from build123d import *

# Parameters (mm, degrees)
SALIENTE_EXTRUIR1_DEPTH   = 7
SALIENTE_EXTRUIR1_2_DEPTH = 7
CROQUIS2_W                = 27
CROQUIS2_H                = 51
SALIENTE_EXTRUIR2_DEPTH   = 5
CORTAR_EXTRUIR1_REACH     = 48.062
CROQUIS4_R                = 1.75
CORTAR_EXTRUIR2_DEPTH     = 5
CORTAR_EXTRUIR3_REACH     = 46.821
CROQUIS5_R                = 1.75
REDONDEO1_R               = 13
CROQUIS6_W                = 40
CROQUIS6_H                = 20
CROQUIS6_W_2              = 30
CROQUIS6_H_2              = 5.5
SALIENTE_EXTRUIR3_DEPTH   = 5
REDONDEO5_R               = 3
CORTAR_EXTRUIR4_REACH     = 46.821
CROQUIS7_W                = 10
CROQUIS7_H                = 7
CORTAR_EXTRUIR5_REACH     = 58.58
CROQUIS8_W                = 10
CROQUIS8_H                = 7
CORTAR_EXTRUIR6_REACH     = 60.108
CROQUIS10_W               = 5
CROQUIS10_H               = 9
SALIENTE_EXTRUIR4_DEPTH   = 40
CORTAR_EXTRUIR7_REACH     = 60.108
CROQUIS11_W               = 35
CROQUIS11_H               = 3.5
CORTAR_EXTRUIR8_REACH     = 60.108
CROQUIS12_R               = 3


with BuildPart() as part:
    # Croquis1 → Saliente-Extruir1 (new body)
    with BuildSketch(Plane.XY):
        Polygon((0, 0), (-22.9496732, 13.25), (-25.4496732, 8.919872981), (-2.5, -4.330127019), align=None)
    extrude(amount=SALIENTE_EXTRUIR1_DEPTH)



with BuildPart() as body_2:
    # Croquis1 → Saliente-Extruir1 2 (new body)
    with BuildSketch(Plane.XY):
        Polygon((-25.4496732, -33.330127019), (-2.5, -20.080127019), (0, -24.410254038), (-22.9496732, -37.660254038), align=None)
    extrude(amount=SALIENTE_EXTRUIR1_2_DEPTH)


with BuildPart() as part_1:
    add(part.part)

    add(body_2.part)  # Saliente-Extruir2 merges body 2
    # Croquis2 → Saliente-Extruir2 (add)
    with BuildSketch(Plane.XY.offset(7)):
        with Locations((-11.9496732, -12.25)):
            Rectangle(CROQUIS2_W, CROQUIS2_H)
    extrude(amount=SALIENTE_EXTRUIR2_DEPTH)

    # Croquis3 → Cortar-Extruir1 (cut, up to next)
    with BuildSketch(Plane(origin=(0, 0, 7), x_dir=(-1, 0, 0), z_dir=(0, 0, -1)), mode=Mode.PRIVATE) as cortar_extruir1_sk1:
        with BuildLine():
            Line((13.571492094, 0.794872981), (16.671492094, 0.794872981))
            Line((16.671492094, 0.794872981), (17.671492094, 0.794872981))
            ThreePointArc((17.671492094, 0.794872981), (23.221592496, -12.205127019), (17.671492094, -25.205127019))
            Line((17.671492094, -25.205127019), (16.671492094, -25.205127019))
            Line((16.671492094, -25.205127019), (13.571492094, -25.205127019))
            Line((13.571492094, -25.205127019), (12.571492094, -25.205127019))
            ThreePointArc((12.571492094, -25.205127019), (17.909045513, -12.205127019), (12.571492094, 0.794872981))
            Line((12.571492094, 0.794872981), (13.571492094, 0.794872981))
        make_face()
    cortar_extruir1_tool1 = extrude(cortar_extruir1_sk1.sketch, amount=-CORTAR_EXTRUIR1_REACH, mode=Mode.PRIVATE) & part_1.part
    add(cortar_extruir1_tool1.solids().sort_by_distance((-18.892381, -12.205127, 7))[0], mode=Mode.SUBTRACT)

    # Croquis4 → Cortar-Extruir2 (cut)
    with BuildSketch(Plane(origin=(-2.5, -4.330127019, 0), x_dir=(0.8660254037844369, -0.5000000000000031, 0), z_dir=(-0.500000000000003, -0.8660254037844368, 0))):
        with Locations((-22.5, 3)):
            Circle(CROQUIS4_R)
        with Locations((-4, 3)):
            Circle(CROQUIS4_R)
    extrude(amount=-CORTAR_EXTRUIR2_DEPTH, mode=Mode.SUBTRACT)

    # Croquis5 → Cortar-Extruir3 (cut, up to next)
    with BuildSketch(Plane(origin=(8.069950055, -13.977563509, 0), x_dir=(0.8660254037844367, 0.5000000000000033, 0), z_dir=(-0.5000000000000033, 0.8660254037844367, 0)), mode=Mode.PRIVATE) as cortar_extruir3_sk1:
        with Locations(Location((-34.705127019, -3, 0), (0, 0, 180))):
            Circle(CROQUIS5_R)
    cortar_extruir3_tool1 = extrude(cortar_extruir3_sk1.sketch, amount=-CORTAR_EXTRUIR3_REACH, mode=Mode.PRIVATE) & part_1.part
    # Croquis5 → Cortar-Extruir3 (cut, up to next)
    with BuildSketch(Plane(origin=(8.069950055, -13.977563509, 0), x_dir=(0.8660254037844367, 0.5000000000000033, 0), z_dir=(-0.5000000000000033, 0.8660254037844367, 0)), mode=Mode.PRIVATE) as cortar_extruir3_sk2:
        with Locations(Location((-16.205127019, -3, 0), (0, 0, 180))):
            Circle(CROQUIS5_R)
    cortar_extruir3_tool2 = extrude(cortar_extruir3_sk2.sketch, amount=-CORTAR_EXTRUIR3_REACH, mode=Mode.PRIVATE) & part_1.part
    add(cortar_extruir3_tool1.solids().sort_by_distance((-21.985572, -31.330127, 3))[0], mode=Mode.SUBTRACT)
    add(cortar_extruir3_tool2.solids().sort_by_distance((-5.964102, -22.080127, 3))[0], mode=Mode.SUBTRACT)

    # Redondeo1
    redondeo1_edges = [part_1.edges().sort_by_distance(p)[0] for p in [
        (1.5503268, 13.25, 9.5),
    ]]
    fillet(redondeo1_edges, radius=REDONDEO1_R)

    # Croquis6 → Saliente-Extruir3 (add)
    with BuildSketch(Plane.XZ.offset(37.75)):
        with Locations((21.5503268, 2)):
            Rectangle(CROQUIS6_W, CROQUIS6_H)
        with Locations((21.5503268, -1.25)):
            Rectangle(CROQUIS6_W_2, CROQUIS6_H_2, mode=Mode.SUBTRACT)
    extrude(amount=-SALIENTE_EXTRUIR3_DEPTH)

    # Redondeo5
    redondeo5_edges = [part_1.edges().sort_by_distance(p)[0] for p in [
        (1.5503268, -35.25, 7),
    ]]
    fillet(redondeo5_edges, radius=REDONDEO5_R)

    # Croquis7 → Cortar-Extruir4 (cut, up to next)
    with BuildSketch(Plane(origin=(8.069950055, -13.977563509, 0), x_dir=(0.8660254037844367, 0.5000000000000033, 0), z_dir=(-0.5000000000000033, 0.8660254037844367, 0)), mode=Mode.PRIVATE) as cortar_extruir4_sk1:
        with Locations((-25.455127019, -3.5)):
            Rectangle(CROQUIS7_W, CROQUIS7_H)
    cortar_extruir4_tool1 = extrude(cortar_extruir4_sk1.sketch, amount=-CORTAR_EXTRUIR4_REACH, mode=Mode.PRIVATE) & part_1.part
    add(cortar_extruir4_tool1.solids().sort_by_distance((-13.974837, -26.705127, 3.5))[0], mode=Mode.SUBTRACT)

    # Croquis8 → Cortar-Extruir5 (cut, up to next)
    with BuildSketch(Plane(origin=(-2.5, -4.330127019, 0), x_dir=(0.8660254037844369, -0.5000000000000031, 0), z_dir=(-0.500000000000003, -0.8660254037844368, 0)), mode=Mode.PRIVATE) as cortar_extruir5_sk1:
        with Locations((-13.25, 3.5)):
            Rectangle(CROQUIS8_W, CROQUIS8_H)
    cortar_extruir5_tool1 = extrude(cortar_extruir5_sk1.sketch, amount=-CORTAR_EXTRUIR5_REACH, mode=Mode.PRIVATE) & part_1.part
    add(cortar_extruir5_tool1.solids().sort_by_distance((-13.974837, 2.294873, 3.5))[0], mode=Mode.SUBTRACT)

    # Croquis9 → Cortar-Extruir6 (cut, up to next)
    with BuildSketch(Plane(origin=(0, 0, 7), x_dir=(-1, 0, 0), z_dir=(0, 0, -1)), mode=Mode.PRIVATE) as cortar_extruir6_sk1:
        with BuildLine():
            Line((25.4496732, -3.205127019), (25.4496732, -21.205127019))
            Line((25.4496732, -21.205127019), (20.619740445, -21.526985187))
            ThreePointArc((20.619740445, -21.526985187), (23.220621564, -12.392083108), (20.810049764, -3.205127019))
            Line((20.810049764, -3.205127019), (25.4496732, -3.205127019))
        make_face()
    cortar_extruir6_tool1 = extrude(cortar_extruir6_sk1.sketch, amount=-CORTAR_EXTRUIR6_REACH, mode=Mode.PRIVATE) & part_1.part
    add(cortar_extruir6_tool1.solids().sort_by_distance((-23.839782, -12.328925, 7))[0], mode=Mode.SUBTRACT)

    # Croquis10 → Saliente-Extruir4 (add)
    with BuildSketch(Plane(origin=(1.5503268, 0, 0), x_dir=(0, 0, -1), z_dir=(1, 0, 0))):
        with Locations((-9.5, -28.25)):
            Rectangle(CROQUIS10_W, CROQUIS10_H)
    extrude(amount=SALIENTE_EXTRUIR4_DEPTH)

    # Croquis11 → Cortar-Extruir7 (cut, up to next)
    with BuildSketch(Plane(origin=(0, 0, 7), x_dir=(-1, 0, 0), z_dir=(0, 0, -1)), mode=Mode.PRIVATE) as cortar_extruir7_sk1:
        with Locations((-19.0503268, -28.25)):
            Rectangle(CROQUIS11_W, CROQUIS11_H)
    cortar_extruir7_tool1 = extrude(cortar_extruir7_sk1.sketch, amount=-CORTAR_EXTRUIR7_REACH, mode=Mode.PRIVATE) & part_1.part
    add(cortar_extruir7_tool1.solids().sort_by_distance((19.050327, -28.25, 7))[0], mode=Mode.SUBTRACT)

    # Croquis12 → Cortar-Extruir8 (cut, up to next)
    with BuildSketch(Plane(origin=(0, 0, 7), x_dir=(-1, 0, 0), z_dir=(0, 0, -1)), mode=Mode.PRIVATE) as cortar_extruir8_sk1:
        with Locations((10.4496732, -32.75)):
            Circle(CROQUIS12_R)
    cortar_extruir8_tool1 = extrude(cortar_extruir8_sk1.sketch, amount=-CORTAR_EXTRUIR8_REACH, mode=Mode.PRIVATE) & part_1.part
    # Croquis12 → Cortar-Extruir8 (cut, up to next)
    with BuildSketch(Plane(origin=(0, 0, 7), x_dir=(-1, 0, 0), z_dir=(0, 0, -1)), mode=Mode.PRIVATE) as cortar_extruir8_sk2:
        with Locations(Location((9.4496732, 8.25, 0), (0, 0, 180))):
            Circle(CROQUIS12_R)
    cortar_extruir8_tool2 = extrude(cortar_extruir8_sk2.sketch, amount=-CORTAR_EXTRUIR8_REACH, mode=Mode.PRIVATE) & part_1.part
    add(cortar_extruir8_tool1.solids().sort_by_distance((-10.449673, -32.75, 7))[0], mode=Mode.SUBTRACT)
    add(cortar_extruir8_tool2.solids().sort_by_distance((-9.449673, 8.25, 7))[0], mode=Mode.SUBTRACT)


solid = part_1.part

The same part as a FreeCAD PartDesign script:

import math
import FreeCAD as App
import Part
import Sketcher
from FreeCAD import Vector
Q = App.Units.Quantity


def edges_at(feature, points):
    """Names of the edges that pass closest to the given points."""
    edges = feature.Shape.Edges
    near = lambda p: min(range(len(edges)), key=lambda i: edges[i].distToShape(Part.Vertex(*p))[0])
    return sorted({f"Edge{near(p) + 1}" for p in points})

doc = App.newDocument("Part")
body = doc.addObject("PartDesign::Body", "Body")

# Sketch on XY plane
sketch1 = body.newObject("Sketcher::SketchObject", "Sketch")
sketch1.AttachmentSupport = (doc.getObject("XY_Plane"), [""])
sketch1.MapMode = "FlatFace"
sketch1.addGeometry([
    Part.LineSegment(Vector(0, 0, 0), Vector(-23, 13, 0)),
    Part.LineSegment(Vector(-23, 13, 0), Vector(-25, 9, 0)),
    Part.LineSegment(Vector(-25, 9, 0), Vector(-2, -4, 0)),
    Part.LineSegment(Vector(-2, -4, 0), Vector(0, 0, 0)),
], False)
sketch1.addConstraint([
    Sketcher.Constraint("Coincident", 0, 2, 1, 1),
    Sketcher.Constraint("Coincident", 1, 2, 2, 1),
    Sketcher.Constraint("Coincident", 2, 2, 3, 1),
    Sketcher.Constraint("Coincident", 3, 2, 0, 1),
    Sketcher.Constraint("Coincident", 3, 2, -1, 1),
    Sketcher.Constraint("Perpendicular", 0, 1),
    Sketcher.Constraint("Perpendicular", 1, 2),
    Sketcher.Constraint("Perpendicular", 2, 3),
    Sketcher.Constraint("Angle", 0, Q("150 deg")),
    Sketcher.Constraint("Distance", 1, Q("5 mm")),
    Sketcher.Constraint("Distance", 0, Q("26.5 mm")),
])
pad1 = body.newObject("PartDesign::Pad", "Pad")
pad1.Profile = sketch1
pad1.Length = 7
body2 = doc.addObject("PartDesign::Body", "Body001")

# Sketch on XY plane
sketch2 = body2.newObject("Sketcher::SketchObject", "Sketch001")
sketch2.AttachmentSupport = (doc.getObject("XY_Plane001"), [""])
sketch2.MapMode = "FlatFace"
sketch2.addGeometry([
    Part.LineSegment(Vector(-2, -20, 0), Vector(-25, -33, 0)),
    Part.LineSegment(Vector(-25, -33, 0), Vector(-23, -38, 0)),
    Part.LineSegment(Vector(-23, -38, 0), Vector(0, -24, 0)),
    Part.LineSegment(Vector(0, -24, 0), Vector(-2, -20, 0)),
], False)
sketch2.addConstraint([
    Sketcher.Constraint("Coincident", 0, 2, 1, 1),
    Sketcher.Constraint("Coincident", 1, 2, 2, 1),
    Sketcher.Constraint("Coincident", 2, 2, 3, 1),
    Sketcher.Constraint("Coincident", 3, 2, 0, 1),
    Sketcher.Constraint("PointOnObject", 2, 2, -2),
    Sketcher.Constraint("Perpendicular", 0, 1),
    Sketcher.Constraint("Perpendicular", 1, 2),
    Sketcher.Constraint("Perpendicular", 2, 3),
    Sketcher.Constraint("Angle", 0, Q("-150 deg")),
    Sketcher.Constraint("Distance", 1, Q("5 mm")),
    Sketcher.Constraint("Distance", 0, Q("26.5 mm")),
    Sketcher.Constraint("DistanceY", 0, 2, -1, 1, Q("33.330127 mm")),
])
pad2 = body2.newObject("PartDesign::Pad", "Pad001")
pad2.Profile = sketch2
pad2.Length = 7
body.AllowCompound = True
doc.recompute()

boolean = body.newObject("PartDesign::Boolean", "Boolean")
boolean.Type = "Fuse"
boolean.addObjects([body2])

# Sketch on XY plane
sketch3 = body.newObject("Sketcher::SketchObject", "Sketch002")
sketch3.AttachmentSupport = (doc.getObject("XY_Plane"), [""])
sketch3.MapMode = "FlatFace"
sketch3.AttachmentOffset = App.Placement(Vector(0, 0, 7), App.Rotation())
sketch3.addGeometry([
    Part.LineSegment(Vector(-25, 13, 0), Vector(-25, -38, 0)),
    Part.LineSegment(Vector(-25, -38, 0), Vector(2, -38, 0)),
    Part.LineSegment(Vector(2, -38, 0), Vector(2, 13, 0)),
    Part.LineSegment(Vector(2, 13, 0), Vector(-25, 13, 0)),
], False)
sketch3.addConstraint([
    Sketcher.Constraint("Coincident", 0, 2, 1, 1),
    Sketcher.Constraint("Coincident", 1, 2, 2, 1),
    Sketcher.Constraint("Coincident", 2, 2, 3, 1),
    Sketcher.Constraint("Coincident", 3, 2, 0, 1),
    Sketcher.Constraint("Vertical", 0),
    Sketcher.Constraint("Horizontal", 1),
    Sketcher.Constraint("Vertical", 2),
    Sketcher.Constraint("Horizontal", 3),
    Sketcher.Constraint("DistanceX", 1, 1, 1, 2, Q("27 mm")),
    Sketcher.Constraint("DistanceY", 0, 2, 0, 1, Q("51 mm")),
    Sketcher.Constraint("DistanceY", 0, 2, -1, 1, Q("37.75 mm")),
    Sketcher.Constraint("DistanceX", 0, 2, -1, 1, Q("25.449673 mm")),
])
pad3 = body.newObject("PartDesign::Pad", "Pad002")
pad3.Profile = sketch3
pad3.Length = 5

# Sketch on XY plane
sketch4 = body.newObject("Sketcher::SketchObject", "Sketch003")
sketch4.AttachmentSupport = (doc.getObject("XY_Plane"), [""])
sketch4.MapMode = "FlatFace"
sketch4.AttachmentOffset = App.Placement(Vector(0, 0, 7), App.Rotation())
sketch4.addGeometry([
    Part.ArcOfCircle(Part.Circle(Vector(-5, -12, 0), Vector(0, 0, 1), 18), math.radians(134), math.radians(226)),
    Part.LineSegment(Vector(-18, 1, 0), Vector(-13, 1, 0)),
    Part.ArcOfCircle(Part.Circle(Vector(1, -12, 0), Vector(0, 0, 1), 18), math.radians(135), math.radians(225)),
    Part.LineSegment(Vector(-13, -25, 0), Vector(-18, -25, 0)),
], False)
sketch4.addConstraint([
    Sketcher.Constraint("Coincident", 0, 1, 1, 1),
    Sketcher.Constraint("Coincident", 1, 2, 2, 1),
    Sketcher.Constraint("Coincident", 2, 2, 3, 1),
    Sketcher.Constraint("Coincident", 3, 2, 0, 2),
    Sketcher.Constraint("Horizontal", 1),
    Sketcher.Constraint("Horizontal", 3),
    Sketcher.Constraint("Horizontal", 0, 3, 2, 3),
    Sketcher.Constraint("Vertical", 1, 2, 2, 2),
    Sketcher.Constraint("Radius", 0, Q("18 mm")),
    Sketcher.Constraint("Radius", 2, Q("18.5 mm")),
    Sketcher.Constraint("DistanceX", 1, 1, 1, 2, Q("5.1 mm")),
    Sketcher.Constraint("DistanceY", 0, 3, 0, 1, Q("13 mm")),
    Sketcher.Constraint("DistanceX", 0, 3, -1, 1, Q("5.221592 mm")),
    Sketcher.Constraint("DistanceY", 0, 3, -1, 1, Q("12.205127 mm")),
])
pocket1 = body.newObject("PartDesign::Pocket", "Pocket")
pocket1.Profile = sketch4
pocket1.Type = "UpToFirst"
pocket1.Reversed = True

# Sketch on an angled plane
sketch5 = body.newObject("Sketcher::SketchObject", "Sketch004")
sketch5.Placement = App.Placement(Vector(-2.5, -4.330127, 0), App.Rotation(Vector(0.866025404, -0.5, 0), Vector(0, 0, 1), Vector(-0.5, -0.866025404, 0), "ZXY"))
sketch5.addGeometry([
    Part.Circle(Vector(-22.5, 3, 0), Vector(0, 0, 1), 1.8),
    Part.Circle(Vector(-4, 3, 0), Vector(0, 0, 1), 1.8),
], False)
sketch5.addConstraint([
    Sketcher.Constraint("Equal", 0, 1),
    Sketcher.Constraint("Horizontal", 0, 3, 1, 3),
    Sketcher.Constraint("Diameter", 0, Q("3.5 mm")),
    Sketcher.Constraint("DistanceY", -1, 1, 0, 3, Q("3 mm")),
    Sketcher.Constraint("DistanceX", 1, 3, -1, 1, Q("4 mm")),
    Sketcher.Constraint("DistanceX", 0, 3, -1, 1, Q("22.5 mm")),
])
pocket2 = body.newObject("PartDesign::Pocket", "Pocket001")
pocket2.Profile = sketch5
pocket2.Length = 5

# Sketch on an angled plane
sketch6 = body.newObject("Sketcher::SketchObject", "Sketch005")
sketch6.Placement = App.Placement(Vector(8.06995, -13.977564, 0), App.Rotation(Vector(0.866025404, 0.5, 0), Vector(0, 0, -1), Vector(-0.5, 0.866025404, 0), "ZXY"))
sketch6.addGeometry(Part.Circle(Vector(-34.7, -3, 0), Vector(0, 0, 1), 1.8), False)
sketch6.addConstraint([
    Sketcher.Constraint("Diameter", 0, Q("3.5 mm")),
    Sketcher.Constraint("DistanceY", 0, 3, -1, 1, Q("3 mm")),
    Sketcher.Constraint("DistanceX", 0, 3, -1, 1, Q("34.705127 mm")),
])
pocket3 = body.newObject("PartDesign::Pocket", "Pocket002")
pocket3.Profile = sketch6
pocket3.Type = "UpToFirst"

# Sketch on an angled plane
sketch7 = body.newObject("Sketcher::SketchObject", "Sketch006")
sketch7.Placement = App.Placement(Vector(8.06995, -13.977564, 0), App.Rotation(Vector(0.866025404, 0.5, 0), Vector(0, 0, -1), Vector(-0.5, 0.866025404, 0), "ZXY"))
sketch7.addGeometry(Part.Circle(Vector(-16.2, -3, 0), Vector(0, 0, 1), 1.8), False)
sketch7.addConstraint([
    Sketcher.Constraint("Diameter", 0, Q("3.5 mm")),
    Sketcher.Constraint("DistanceY", 0, 3, -1, 1, Q("3 mm")),
    Sketcher.Constraint("DistanceX", 0, 3, -1, 1, Q("16.205127 mm")),
])
pocket4 = body.newObject("PartDesign::Pocket", "Pocket003")
pocket4.Profile = sketch7
pocket4.Type = "UpToFirst"
doc.recompute()

fillet = body.newObject("PartDesign::Fillet", "Fillet")
fillet.Base = (pocket4, edges_at(pocket4, [(1.55, 13.25, 9.5)]))
fillet.Radius = 13

# Sketch on XZ plane
sketch8 = body.newObject("Sketcher::SketchObject", "Sketch007")
sketch8.AttachmentSupport = (doc.getObject("XZ_Plane"), [""])
sketch8.MapMode = "FlatFace"
sketch8.AttachmentOffset = App.Placement(Vector(0, 0, 37.75), App.Rotation())
sketch8.addGeometry([
    Part.LineSegment(Vector(2, 12, 0), Vector(2, -8, 0)),  # 0
    Part.LineSegment(Vector(2, -8, 0), Vector(42, -8, 0)),  # 1
    Part.LineSegment(Vector(42, -8, 0), Vector(42, 12, 0)),  # 2
    Part.LineSegment(Vector(42, 12, 0), Vector(2, 12, 0)),  # 3
    Part.LineSegment(Vector(37, -4, 0), Vector(7, -4, 0)),  # 4
    Part.LineSegment(Vector(7, -4, 0), Vector(7, 2, 0)),  # 5
    Part.LineSegment(Vector(7, 2, 0), Vector(37, 2, 0)),  # 6
    Part.LineSegment(Vector(37, 2, 0), Vector(37, -4, 0)),  # 7
], False)
sketch8.addConstraint([
    Sketcher.Constraint("Coincident", 0, 2, 1, 1),
    Sketcher.Constraint("Coincident", 1, 2, 2, 1),
    Sketcher.Constraint("Coincident", 2, 2, 3, 1),
    Sketcher.Constraint("Coincident", 3, 2, 0, 1),
    Sketcher.Constraint("Coincident", 4, 2, 5, 1),
    Sketcher.Constraint("Coincident", 5, 2, 6, 1),
    Sketcher.Constraint("Coincident", 6, 2, 7, 1),
    Sketcher.Constraint("Coincident", 7, 2, 4, 1),
    Sketcher.Constraint("Vertical", 0),
    Sketcher.Constraint("Horizontal", 1),
    Sketcher.Constraint("Vertical", 2),
    Sketcher.Constraint("Horizontal", 3),
    Sketcher.Constraint("Horizontal", 4),
    Sketcher.Constraint("Vertical", 5),
    Sketcher.Constraint("Horizontal", 6),
    Sketcher.Constraint("Vertical", 7),
    Sketcher.Constraint("DistanceX", 1, 1, 1, 2, Q("40 mm")),
    Sketcher.Constraint("DistanceX", 4, 2, 4, 1, Q("30 mm")),
    Sketcher.Constraint("DistanceY", 0, 2, 0, 1, Q("20 mm")),
    Sketcher.Constraint("DistanceY", 5, 1, 5, 2, Q("5.5 mm")),
    Sketcher.Constraint("DistanceY", 0, 2, -1, 1, Q("8 mm")),
    Sketcher.Constraint("DistanceY", 4, 2, -1, 1, Q("4 mm")),
    Sketcher.Constraint("DistanceX", 0, 2, 4, 2, Q("5 mm")),
    Sketcher.Constraint("DistanceX", -1, 1, 0, 2, Q("1.550327 mm")),
])
pad4 = body.newObject("PartDesign::Pad", "Pad003")
pad4.Profile = sketch8
pad4.Length = 5
pad4.Reversed = True
doc.recompute()

fillet2 = body.newObject("PartDesign::Fillet", "Fillet001")
fillet2.Base = (pad4, edges_at(pad4, [(1.55, -35.25, 7)]))
fillet2.Radius = 3

# Sketch on an angled plane
sketch9 = body.newObject("Sketcher::SketchObject", "Sketch008")
sketch9.Placement = App.Placement(Vector(8.06995, -13.977564, 0), App.Rotation(Vector(0.866025404, 0.5, 0), Vector(0, 0, -1), Vector(-0.5, 0.866025404, 0), "ZXY"))
sketch9.addGeometry([
    Part.LineSegment(Vector(-30, 0, 0), Vector(-30, -7, 0)),
    Part.LineSegment(Vector(-30, -7, 0), Vector(-20, -7, 0)),
    Part.LineSegment(Vector(-20, -7, 0), Vector(-20, 0, 0)),
    Part.LineSegment(Vector(-20, 0, 0), Vector(-30, 0, 0)),
], False)
sketch9.addConstraint([
    Sketcher.Constraint("Coincident", 0, 2, 1, 1),
    Sketcher.Constraint("Coincident", 1, 2, 2, 1),
    Sketcher.Constraint("Coincident", 2, 2, 3, 1),
    Sketcher.Constraint("Coincident", 3, 2, 0, 1),
    Sketcher.Constraint("Vertical", 0),
    Sketcher.Constraint("Horizontal", 1),
    Sketcher.Constraint("Vertical", 2),
    Sketcher.Constraint("Horizontal", 3),
    Sketcher.Constraint("PointOnObject", 2, 2, -1),
    Sketcher.Constraint("DistanceX", 1, 1, 1, 2, Q("10 mm")),
    Sketcher.Constraint("DistanceY", 0, 2, 0, 1, Q("7 mm")),
    Sketcher.Constraint("DistanceX", 0, 2, -1, 1, Q("30.455127 mm")),
])
pocket5 = body.newObject("PartDesign::Pocket", "Pocket004")
pocket5.Profile = sketch9
pocket5.Type = "UpToFirst"

# Sketch on an angled plane
sketch10 = body.newObject("Sketcher::SketchObject", "Sketch009")
sketch10.Placement = App.Placement(Vector(-2.5, -4.330127, 0), App.Rotation(Vector(0.866025404, -0.5, 0), Vector(0, 0, 1), Vector(-0.5, -0.866025404, 0), "ZXY"))
sketch10.addGeometry([
    Part.LineSegment(Vector(-18, 7, 0), Vector(-18, 0, 0)),
    Part.LineSegment(Vector(-18, 0, 0), Vector(-8, 0, 0)),
    Part.LineSegment(Vector(-8, 0, 0), Vector(-8, 7, 0)),
    Part.LineSegment(Vector(-8, 7, 0), Vector(-18, 7, 0)),
], False)
sketch10.addConstraint([
    Sketcher.Constraint("Coincident", 0, 2, 1, 1),
    Sketcher.Constraint("Coincident", 1, 2, 2, 1),
    Sketcher.Constraint("Coincident", 2, 2, 3, 1),
    Sketcher.Constraint("Coincident", 3, 2, 0, 1),
    Sketcher.Constraint("Vertical", 0),
    Sketcher.Constraint("Horizontal", 1),
    Sketcher.Constraint("Vertical", 2),
    Sketcher.Constraint("Horizontal", 3),
    Sketcher.Constraint("PointOnObject", 0, 2, -1),
    Sketcher.Constraint("DistanceX", 1, 1, 1, 2, Q("10 mm")),
    Sketcher.Constraint("DistanceY", 0, 2, 0, 1, Q("7 mm")),
    Sketcher.Constraint("DistanceX", 0, 2, -1, 1, Q("18.25 mm")),
])
pocket6 = body.newObject("PartDesign::Pocket", "Pocket005")
pocket6.Profile = sketch10
pocket6.Type = "UpToFirst"

# Sketch on XY plane
sketch11 = body.newObject("Sketcher::SketchObject", "Sketch010")
sketch11.AttachmentSupport = (doc.getObject("XY_Plane"), [""])
sketch11.MapMode = "FlatFace"
sketch11.AttachmentOffset = App.Placement(Vector(0, 0, 7), App.Rotation())
sketch11.addGeometry([
    Part.LineSegment(Vector(-25.4, -21.2, 0), Vector(-25.4, -3.2, 0)),
    Part.LineSegment(Vector(-25.4, -3.2, 0), Vector(-20.8, -3.2, 0)),
    Part.ArcOfCircle(Part.Circle(Vector(-5.2, -12.2, 0), Vector(0, 0, 1), 18), math.radians(150), math.radians(211)),
    Part.LineSegment(Vector(-20.6, -21.5, 0), Vector(-25.4, -21.2, 0)),
], False)
sketch11.addConstraint([
    Sketcher.Constraint("Coincident", 0, 2, 1, 1),
    Sketcher.Constraint("Coincident", 1, 2, 2, 1),
    Sketcher.Constraint("Coincident", 2, 2, 3, 1),
    Sketcher.Constraint("Coincident", 3, 2, 0, 1),
    Sketcher.Constraint("Vertical", 0),
    Sketcher.Constraint("Horizontal", 1),
    Sketcher.Constraint("Radius", 2, Q("18 mm")),
    Sketcher.Constraint("DistanceY", 0, 1, 0, 2, Q("18 mm")),
    Sketcher.Constraint("DistanceY", 2, 3, 0, 2, Q("9 mm")),
    Sketcher.Constraint("DistanceX", 1, 1, 1, 2, Q("4.639623 mm")),
    Sketcher.Constraint("DistanceX", 1, 2, -1, 1, Q("20.81005 mm")),
    Sketcher.Constraint("DistanceX", 2, 2, -1, 1, Q("20.61974 mm")),
    Sketcher.Constraint("DistanceY", 2, 3, -1, 1, Q("12.205127 mm")),
])
pocket7 = body.newObject("PartDesign::Pocket", "Pocket006")
pocket7.Profile = sketch11
pocket7.Type = "UpToFirst"
pocket7.Reversed = True

# Sketch on YZ plane
sketch12 = body.newObject("Sketcher::SketchObject", "Sketch011")
sketch12.AttachmentSupport = (doc.getObject("YZ_Plane"), [""])
sketch12.MapMode = "FlatFace"
sketch12.AttachmentOffset = App.Placement(Vector(0, 0, 1.550327), App.Rotation())
sketch12.addGeometry([
    Part.LineSegment(Vector(-24, 12, 0), Vector(-33, 12, 0)),
    Part.LineSegment(Vector(-33, 12, 0), Vector(-33, 7, 0)),
    Part.LineSegment(Vector(-33, 7, 0), Vector(-24, 7, 0)),
    Part.LineSegment(Vector(-24, 7, 0), Vector(-24, 12, 0)),
], False)
sketch12.addConstraint([
    Sketcher.Constraint("Coincident", 0, 2, 1, 1),
    Sketcher.Constraint("Coincident", 1, 2, 2, 1),
    Sketcher.Constraint("Coincident", 2, 2, 3, 1),
    Sketcher.Constraint("Coincident", 3, 2, 0, 1),
    Sketcher.Constraint("Horizontal", 0),
    Sketcher.Constraint("Vertical", 1),
    Sketcher.Constraint("Horizontal", 2),
    Sketcher.Constraint("Vertical", 3),
    Sketcher.Constraint("DistanceX", 0, 2, 0, 1, Q("9 mm")),
    Sketcher.Constraint("DistanceY", 1, 2, 1, 1, Q("5 mm")),
    Sketcher.Constraint("DistanceY", -1, 1, 0, 2, Q("12 mm")),
    Sketcher.Constraint("DistanceX", 0, 2, -1, 1, Q("32.75 mm")),
])
pad5 = body.newObject("PartDesign::Pad", "Pad004")
pad5.Profile = sketch12
pad5.Length = 40

# Sketch on XY plane
sketch13 = body.newObject("Sketcher::SketchObject", "Sketch012")
sketch13.AttachmentSupport = (doc.getObject("XY_Plane"), [""])
sketch13.MapMode = "FlatFace"
sketch13.AttachmentOffset = App.Placement(Vector(0, 0, 7), App.Rotation())
sketch13.addGeometry([
    Part.LineSegment(Vector(36.6, -26.5, 0), Vector(36.6, -30, 0)),
    Part.LineSegment(Vector(36.6, -30, 0), Vector(1.6, -30, 0)),
    Part.LineSegment(Vector(1.6, -30, 0), Vector(1.6, -26.5, 0)),
    Part.LineSegment(Vector(1.6, -26.5, 0), Vector(36.6, -26.5, 0)),
], False)
sketch13.addConstraint([
    Sketcher.Constraint("Coincident", 0, 2, 1, 1),
    Sketcher.Constraint("Coincident", 1, 2, 2, 1),
    Sketcher.Constraint("Coincident", 2, 2, 3, 1),
    Sketcher.Constraint("Coincident", 3, 2, 0, 1),
    Sketcher.Constraint("Vertical", 0),
    Sketcher.Constraint("Horizontal", 1),
    Sketcher.Constraint("Vertical", 2),
    Sketcher.Constraint("Horizontal", 3),
    Sketcher.Constraint("DistanceX", 1, 2, 1, 1, Q("35 mm")),
    Sketcher.Constraint("DistanceY", 0, 2, 0, 1, Q("3.5 mm")),
    Sketcher.Constraint("DistanceY", 0, 2, -1, 1, Q("30 mm")),
    Sketcher.Constraint("DistanceX", -1, 1, 0, 2, Q("36.550327 mm")),
])
pocket8 = body.newObject("PartDesign::Pocket", "Pocket007")
pocket8.Profile = sketch13
pocket8.Type = "UpToFirst"
pocket8.Reversed = True

# Sketch on XY plane
sketch14 = body.newObject("Sketcher::SketchObject", "Sketch013")
sketch14.AttachmentSupport = (doc.getObject("XY_Plane"), [""])
sketch14.MapMode = "FlatFace"
sketch14.AttachmentOffset = App.Placement(Vector(0, 0, 7), App.Rotation())
sketch14.addGeometry(Part.Circle(Vector(-10.4, -32.8, 0), Vector(0, 0, 1), 3), False)
sketch14.addConstraint([
    Sketcher.Constraint("Diameter", 0, Q("6 mm")),
    Sketcher.Constraint("DistanceY", 0, 3, -1, 1, Q("32.75 mm")),
    Sketcher.Constraint("DistanceX", 0, 3, -1, 1, Q("10.449673 mm")),
])
pocket9 = body.newObject("PartDesign::Pocket", "Pocket008")
pocket9.Profile = sketch14
pocket9.Type = "UpToFirst"
pocket9.Reversed = True

# Sketch on XY plane
sketch15 = body.newObject("Sketcher::SketchObject", "Sketch014")
sketch15.AttachmentSupport = (doc.getObject("XY_Plane"), [""])
sketch15.MapMode = "FlatFace"
sketch15.AttachmentOffset = App.Placement(Vector(0, 0, 7), App.Rotation())
sketch15.addGeometry(Part.Circle(Vector(-9.4, 8.2, 0), Vector(0, 0, 1), 3), False)
sketch15.addConstraint([
    Sketcher.Constraint("Diameter", 0, Q("6 mm")),
    Sketcher.Constraint("DistanceY", -1, 1, 0, 3, Q("8.25 mm")),
    Sketcher.Constraint("DistanceX", 0, 3, -1, 1, Q("9.449673 mm")),
])
pocket10 = body.newObject("PartDesign::Pocket", "Pocket009")
pocket10.Profile = sketch15
pocket10.Type = "UpToFirst"
pocket10.Reversed = True

doc.recompute()
